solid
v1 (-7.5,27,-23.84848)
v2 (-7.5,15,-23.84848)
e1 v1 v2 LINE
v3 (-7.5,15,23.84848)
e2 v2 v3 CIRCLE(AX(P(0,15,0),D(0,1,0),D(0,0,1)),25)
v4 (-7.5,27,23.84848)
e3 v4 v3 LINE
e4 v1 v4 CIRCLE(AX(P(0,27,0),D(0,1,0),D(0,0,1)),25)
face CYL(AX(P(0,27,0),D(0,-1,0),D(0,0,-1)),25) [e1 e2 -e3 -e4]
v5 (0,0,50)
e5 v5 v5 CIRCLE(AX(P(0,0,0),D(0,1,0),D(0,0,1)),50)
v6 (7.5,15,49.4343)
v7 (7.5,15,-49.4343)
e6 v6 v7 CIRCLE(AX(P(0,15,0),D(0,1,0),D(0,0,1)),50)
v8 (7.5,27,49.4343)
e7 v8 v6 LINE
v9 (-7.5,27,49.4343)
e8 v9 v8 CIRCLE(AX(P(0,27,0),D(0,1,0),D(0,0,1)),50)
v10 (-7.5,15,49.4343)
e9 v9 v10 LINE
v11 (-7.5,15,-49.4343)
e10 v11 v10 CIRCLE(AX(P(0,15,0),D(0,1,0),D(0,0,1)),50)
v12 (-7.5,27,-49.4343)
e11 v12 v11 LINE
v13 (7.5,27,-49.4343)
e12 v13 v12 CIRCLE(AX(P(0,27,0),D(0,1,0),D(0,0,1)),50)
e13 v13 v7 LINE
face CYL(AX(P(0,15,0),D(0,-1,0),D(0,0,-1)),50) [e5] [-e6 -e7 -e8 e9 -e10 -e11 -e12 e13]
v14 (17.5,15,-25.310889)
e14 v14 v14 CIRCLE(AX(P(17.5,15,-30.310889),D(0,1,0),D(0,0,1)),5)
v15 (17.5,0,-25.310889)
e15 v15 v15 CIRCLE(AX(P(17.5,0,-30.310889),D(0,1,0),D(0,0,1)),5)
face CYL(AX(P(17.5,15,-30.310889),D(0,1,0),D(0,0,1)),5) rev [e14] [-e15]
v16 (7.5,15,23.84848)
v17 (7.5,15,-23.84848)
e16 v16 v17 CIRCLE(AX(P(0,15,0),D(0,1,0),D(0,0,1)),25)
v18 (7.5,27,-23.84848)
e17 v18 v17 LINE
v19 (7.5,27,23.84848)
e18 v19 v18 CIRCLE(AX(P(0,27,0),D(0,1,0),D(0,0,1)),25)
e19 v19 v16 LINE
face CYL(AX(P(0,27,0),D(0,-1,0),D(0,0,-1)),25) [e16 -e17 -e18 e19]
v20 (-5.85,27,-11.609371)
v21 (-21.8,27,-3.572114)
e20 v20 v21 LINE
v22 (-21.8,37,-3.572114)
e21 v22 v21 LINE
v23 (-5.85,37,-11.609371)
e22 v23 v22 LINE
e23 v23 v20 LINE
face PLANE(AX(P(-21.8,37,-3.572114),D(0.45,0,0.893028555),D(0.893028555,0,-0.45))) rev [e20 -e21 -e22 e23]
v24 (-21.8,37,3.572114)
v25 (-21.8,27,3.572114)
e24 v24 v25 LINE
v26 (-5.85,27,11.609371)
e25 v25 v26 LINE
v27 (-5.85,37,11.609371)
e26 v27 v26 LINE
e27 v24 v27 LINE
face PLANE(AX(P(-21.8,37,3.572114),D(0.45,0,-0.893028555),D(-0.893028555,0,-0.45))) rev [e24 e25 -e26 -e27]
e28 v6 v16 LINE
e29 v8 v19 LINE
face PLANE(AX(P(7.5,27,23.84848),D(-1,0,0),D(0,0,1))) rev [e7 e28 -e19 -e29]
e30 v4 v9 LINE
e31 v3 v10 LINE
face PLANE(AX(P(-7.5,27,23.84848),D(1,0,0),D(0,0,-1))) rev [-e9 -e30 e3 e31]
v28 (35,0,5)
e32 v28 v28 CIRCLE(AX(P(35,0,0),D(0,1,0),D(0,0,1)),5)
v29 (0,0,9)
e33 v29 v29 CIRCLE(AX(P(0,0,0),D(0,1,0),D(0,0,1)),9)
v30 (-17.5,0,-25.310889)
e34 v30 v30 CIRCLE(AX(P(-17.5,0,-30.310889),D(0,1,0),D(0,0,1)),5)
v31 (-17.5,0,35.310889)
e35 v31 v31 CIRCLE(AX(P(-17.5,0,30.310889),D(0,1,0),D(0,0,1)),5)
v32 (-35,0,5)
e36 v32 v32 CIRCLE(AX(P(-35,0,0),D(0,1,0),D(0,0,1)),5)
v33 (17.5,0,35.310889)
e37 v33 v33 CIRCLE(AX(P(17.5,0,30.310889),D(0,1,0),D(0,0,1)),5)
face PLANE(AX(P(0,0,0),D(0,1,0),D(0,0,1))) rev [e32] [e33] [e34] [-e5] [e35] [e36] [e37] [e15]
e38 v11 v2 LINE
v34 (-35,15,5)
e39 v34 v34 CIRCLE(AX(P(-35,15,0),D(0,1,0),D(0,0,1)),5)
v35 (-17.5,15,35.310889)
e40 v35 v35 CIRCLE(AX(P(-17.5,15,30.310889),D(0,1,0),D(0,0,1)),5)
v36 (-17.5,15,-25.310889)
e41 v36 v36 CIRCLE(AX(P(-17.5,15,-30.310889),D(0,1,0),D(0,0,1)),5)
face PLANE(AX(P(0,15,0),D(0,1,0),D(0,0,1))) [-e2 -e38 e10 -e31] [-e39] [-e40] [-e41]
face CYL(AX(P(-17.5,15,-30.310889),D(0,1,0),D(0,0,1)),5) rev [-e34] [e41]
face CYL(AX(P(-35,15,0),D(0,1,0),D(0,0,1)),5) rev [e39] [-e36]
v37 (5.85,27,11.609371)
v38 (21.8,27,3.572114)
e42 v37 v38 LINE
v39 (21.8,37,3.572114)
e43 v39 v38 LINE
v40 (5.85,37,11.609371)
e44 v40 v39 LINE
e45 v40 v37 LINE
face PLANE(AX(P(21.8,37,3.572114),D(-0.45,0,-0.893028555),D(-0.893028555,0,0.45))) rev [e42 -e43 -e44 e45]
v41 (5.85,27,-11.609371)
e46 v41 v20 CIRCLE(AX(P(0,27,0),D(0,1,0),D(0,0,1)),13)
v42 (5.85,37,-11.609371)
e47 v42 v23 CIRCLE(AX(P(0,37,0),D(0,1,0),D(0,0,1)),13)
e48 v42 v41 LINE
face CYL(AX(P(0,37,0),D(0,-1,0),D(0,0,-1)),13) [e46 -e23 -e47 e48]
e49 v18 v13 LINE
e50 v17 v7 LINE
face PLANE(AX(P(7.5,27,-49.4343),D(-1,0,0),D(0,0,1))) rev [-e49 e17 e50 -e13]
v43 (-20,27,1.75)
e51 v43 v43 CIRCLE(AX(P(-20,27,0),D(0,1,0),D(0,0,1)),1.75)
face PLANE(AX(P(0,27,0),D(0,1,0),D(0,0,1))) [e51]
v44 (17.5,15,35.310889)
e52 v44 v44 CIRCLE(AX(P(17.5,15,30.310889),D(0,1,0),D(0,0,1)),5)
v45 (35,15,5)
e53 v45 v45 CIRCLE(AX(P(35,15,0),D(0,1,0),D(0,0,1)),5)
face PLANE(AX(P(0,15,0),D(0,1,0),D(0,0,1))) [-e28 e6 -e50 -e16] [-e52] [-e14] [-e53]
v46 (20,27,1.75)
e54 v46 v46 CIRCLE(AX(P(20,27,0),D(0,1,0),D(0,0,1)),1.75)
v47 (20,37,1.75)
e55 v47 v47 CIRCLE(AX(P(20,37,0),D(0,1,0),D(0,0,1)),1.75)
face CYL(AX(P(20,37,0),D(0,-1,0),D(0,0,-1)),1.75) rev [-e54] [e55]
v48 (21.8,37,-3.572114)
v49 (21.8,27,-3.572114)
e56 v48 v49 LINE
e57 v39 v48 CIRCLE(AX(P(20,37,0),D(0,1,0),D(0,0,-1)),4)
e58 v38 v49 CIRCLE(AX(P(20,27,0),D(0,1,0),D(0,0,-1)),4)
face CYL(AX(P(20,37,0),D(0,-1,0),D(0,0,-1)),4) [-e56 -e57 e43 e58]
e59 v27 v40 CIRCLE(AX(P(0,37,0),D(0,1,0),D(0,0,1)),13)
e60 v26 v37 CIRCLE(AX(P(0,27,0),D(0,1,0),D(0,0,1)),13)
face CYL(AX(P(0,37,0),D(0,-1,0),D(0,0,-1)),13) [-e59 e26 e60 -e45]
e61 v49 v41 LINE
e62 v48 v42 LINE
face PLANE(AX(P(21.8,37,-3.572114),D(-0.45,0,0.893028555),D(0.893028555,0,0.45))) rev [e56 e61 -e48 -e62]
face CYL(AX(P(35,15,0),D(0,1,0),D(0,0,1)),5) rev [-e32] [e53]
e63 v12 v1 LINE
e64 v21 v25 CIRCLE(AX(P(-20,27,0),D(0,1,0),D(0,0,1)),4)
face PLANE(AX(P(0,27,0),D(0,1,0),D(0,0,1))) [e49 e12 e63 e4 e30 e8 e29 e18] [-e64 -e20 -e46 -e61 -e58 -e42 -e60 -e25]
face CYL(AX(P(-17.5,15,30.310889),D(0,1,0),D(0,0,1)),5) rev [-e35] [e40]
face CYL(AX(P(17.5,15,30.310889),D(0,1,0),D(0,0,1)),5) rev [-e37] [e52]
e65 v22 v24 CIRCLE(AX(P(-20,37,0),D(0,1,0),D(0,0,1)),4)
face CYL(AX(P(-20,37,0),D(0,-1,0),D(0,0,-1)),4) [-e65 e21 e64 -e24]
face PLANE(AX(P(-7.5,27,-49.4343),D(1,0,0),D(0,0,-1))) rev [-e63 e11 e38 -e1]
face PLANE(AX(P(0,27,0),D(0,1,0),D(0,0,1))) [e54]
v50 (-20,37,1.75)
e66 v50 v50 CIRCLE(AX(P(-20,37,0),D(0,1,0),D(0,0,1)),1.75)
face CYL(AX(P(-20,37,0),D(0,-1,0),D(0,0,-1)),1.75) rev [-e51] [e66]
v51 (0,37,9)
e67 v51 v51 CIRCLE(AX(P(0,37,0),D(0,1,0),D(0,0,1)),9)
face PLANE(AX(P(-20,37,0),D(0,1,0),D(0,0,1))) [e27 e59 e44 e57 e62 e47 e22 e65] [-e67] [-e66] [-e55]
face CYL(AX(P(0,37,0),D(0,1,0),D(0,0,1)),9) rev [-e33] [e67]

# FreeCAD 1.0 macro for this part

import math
import FreeCAD as App
import Part
import Sketcher

doc = App.newDocument("Part")
body = doc.addObject("PartDesign::Body", "Body")

# Sketch on XZ plane
sketch1 = body.newObject("Sketcher::SketchObject", "Sketch")
sketch1.AttachmentSupport = (doc.getObject("XZ_Plane"), [""])
sketch1.MapMode = "FlatFace"
sketch1.addGeometry(Part.Circle(App.Vector(0, 0, 0), App.Vector(0, 0, 1), 50), False)
sketch1.addConstraint(Sketcher.Constraint("Coincident", 0, 3, -1, 1))
sketch1.addConstraint(Sketcher.Constraint("Diameter", 0, 100.0))
pad1 = body.newObject("PartDesign::Pad", "Pad")
pad1.Profile = sketch1
pad1.Length = 15
pad1.Reversed = True

# Sketch on XZ plane
sketch2 = body.newObject("Sketcher::SketchObject", "Sketch001")
sketch2.AttachmentSupport = (doc.getObject("XZ_Plane"), [""])
sketch2.MapMode = "FlatFace"
sketch2.AttachmentOffset = App.Placement(App.Vector(0, 0, -15), App.Rotation())
sketch2.addGeometry(Part.LineSegment(App.Vector(7.5, -23.84848, 0), App.Vector(7.5, -49.4343, 0)), False)
sketch2.addGeometry(Part.ArcOfCircle(Part.Circle(App.Vector(0, 0, 0), App.Vector(0, 0, 1), 50), math.radians(-98.626927), math.radians(-81.373073)), False)
sketch2.addGeometry(Part.LineSegment(App.Vector(-7.5, -49.4343, 0), App.Vector(-7.5, -23.84848, 0)), False)
sketch2.addGeometry(Part.ArcOfCircle(Part.Circle(App.Vector(0, 0, 0), App.Vector(0, 0, 1), 25), math.radians(107.457603), math.radians(252.542397)), False)
sketch2.addGeometry(Part.LineSegment(App.Vector(-7.5, 23.84848, 0), App.Vector(-7.5, 49.4343, 0)), False)
sketch2.addGeometry(Part.ArcOfCircle(Part.Circle(App.Vector(0, 0, 0), App.Vector(0, 0, 1), 50), math.radians(81.373073), math.radians(98.626927)), False)
sketch2.addGeometry(Part.LineSegment(App.Vector(7.5, 49.4343, 0), App.Vector(7.5, 23.84848, 0)), False)
sketch2.addGeometry(Part.ArcOfCircle(Part.Circle(App.Vector(0, 0, 0), App.Vector(0, 0, 1), 25), math.radians(-72.542397), math.radians(72.542397)), False)
sketch2.addConstraint(Sketcher.Constraint("Coincident", 0, 2, 1, 2))
sketch2.addConstraint(Sketcher.Constraint("Coincident", 1, 1, 2, 1))
sketch2.addConstraint(Sketcher.Constraint("Coincident", 2, 2, 3, 2))
sketch2.addConstraint(Sketcher.Constraint("Coincident", 3, 1, 4, 1))
sketch2.addConstraint(Sketcher.Constraint("Coincident", 4, 2, 5, 2))
sketch2.addConstraint(Sketcher.Constraint("Coincident", 5, 1, 6, 1))
sketch2.addConstraint(Sketcher.Constraint("Coincident", 6, 2, 7, 2))
sketch2.addConstraint(Sketcher.Constraint("Coincident", 7, 1, 0, 1))
sketch2.addConstraint(Sketcher.Constraint("Vertical", 0))
sketch2.addConstraint(Sketcher.Constraint("Vertical", 2))
sketch2.addConstraint(Sketcher.Constraint("Vertical", 4))
sketch2.addConstraint(Sketcher.Constraint("Vertical", 6))
sketch2.addConstraint(Sketcher.Constraint("Coincident", 1, 3, -1, 1))
sketch2.addConstraint(Sketcher.Constraint("Coincident", 3, 3, -1, 1))
sketch2.addConstraint(Sketcher.Constraint("Coincident", 5, 3, -1, 1))
sketch2.addConstraint(Sketcher.Constraint("Coincident", 7, 3, -1, 1))
sketch2.addConstraint(Sketcher.Constraint("Equal", 1, 5))
sketch2.addConstraint(Sketcher.Constraint("Equal", 3, 7))
sketch2.addConstraint(Sketcher.Constraint("Horizontal", 0, 2, 1, 1))
sketch2.addConstraint(Sketcher.Constraint("Horizontal", 4, 2, 5, 1))
sketch2.addConstraint(Sketcher.Constraint("Vertical", 2, 2, 3, 1))
sketch2.addConstraint(Sketcher.Constraint("Radius", 1, 50.0))
sketch2.addConstraint(Sketcher.Constraint("Radius", 3, 25.0))
sketch2.addConstraint(Sketcher.Constraint("DistanceX", 1, 1, 0, 2, 15.0))
pad2 = body.newObject("PartDesign::Pad", "Pad001")
pad2.Profile = sketch2
pad2.Length = 12
pad2.Reversed = True

# Sketch on XZ plane
sketch3 = body.newObject("Sketcher::SketchObject", "Sketch002")
sketch3.AttachmentSupport = (doc.getObject("XZ_Plane"), [""])
sketch3.MapMode = "FlatFace"
sketch3.AttachmentOffset = App.Placement(App.Vector(0, 0, -27), App.Rotation())
sketch3.addGeometry(Part.LineSegment(App.Vector(-5.85, -11.609371, 0), App.Vector(-21.8, -3.572114, 0)), False)
sketch3.addGeometry(Part.ArcOfCircle(Part.Circle(App.Vector(-20, 0, 0), App.Vector(0, 0, 1), 4), math.radians(116.743684), math.radians(243.256316)), False)
sketch3.addGeometry(Part.LineSegment(App.Vector(-21.8, 3.572114, 0), App.Vector(-5.85, 11.609371, 0)), False)
sketch3.addGeometry(Part.ArcOfCircle(Part.Circle(App.Vector(0, 0, 0), App.Vector(0, 0, 1), 13), math.radians(63.256316), math.radians(116.743684)), False)
sketch3.addGeometry(Part.LineSegment(App.Vector(5.85, 11.609371, 0), App.Vector(21.8, 3.572114, 0)), False)
sketch3.addGeometry(Part.ArcOfCircle(Part.Circle(App.Vector(20, 0, 0), App.Vector(0, 0, 1), 4), math.radians(-63.256316), math.radians(63.256316)), False)
sketch3.addGeometry(Part.LineSegment(App.Vector(21.8, -3.572114, 0), App.Vector(5.85, -11.609371, 0)), False)
sketch3.addGeometry(Part.ArcOfCircle(Part.Circle(App.Vector(0, 0, 0), App.Vector(0, 0, 1), 13), math.radians(-116.743684), math.radians(-63.256316)), False)
sketch3.addGeometry(Part.Circle(App.Vector(20, 0, 0), App.Vector(0, 0, 1), 1.75), False)
sketch3.addGeometry(Part.Circle(App.Vector(-20, 0, 0), App.Vector(0, 0, 1), 1.75), False)
sketch3.addConstraint(Sketcher.Constraint("Tangent", 0, 2, 1, 2))
sketch3.addConstraint(Sketcher.Constraint("Tangent", 1, 1, 2, 1))
sketch3.addConstraint(Sketcher.Constraint("Tangent", 2, 2, 3, 2))
sketch3.addConstraint(Sketcher.Constraint("Tangent", 3, 1, 4, 1))
sketch3.addConstraint(Sketcher.Constraint("Tangent", 4, 2, 5, 2))
sketch3.addConstraint(Sketcher.Constraint("Tangent", 5, 1, 6, 1))
sketch3.addConstraint(Sketcher.Constraint("Tangent", 6, 2, 7, 2))
sketch3.addConstraint(Sketcher.Constraint("Tangent", 7, 1, 0, 1))
sketch3.addConstraint(Sketcher.Constraint("Coincident", 3, 3, -1, 1))
sketch3.addConstraint(Sketcher.Constraint("Coincident", 7, 3, -1, 1))
sketch3.addConstraint(Sketcher.Constraint("Coincident", 8, 3, 5, 3))
sketch3.addConstraint(Sketcher.Constraint("Coincident", 9, 3, 1, 3))
sketch3.addConstraint(Sketcher.Constraint("Equal", 1, 5))
sketch3.addConstraint(Sketcher.Constraint("Equal", 3, 7))
sketch3.addConstraint(Sketcher.Constraint("Equal", 8, 9))
sketch3.addConstraint(Sketcher.Constraint("Symmetric", 1, 3, 5, 3, -1, 1))
sketch3.addConstraint(Sketcher.Constraint("PointOnObject", 1, 3, -1))
sketch3.addConstraint(Sketcher.Constraint("Radius", 1, 4.0))
sketch3.addConstraint(Sketcher.Constraint("Radius", 3, 13.0))
sketch3.addConstraint(Sketcher.Constraint("Diameter", 8, 3.5))
sketch3.addConstraint(Sketcher.Constraint("DistanceX", 1, 3, -1, 1, 20.0))
pad3 = body.newObject("PartDesign::Pad", "Pad002")
pad3.Profile = sketch3
pad3.Length = 10
pad3.Reversed = True

# Sketch on XZ plane
sketch4 = body.newObject("Sketcher::SketchObject", "Sketch003")
sketch4.AttachmentSupport = (doc.getObject("XZ_Plane"), [""])
sketch4.MapMode = "FlatFace"
sketch4.AttachmentOffset = App.Placement(App.Vector(0, 0, -37), App.Rotation())
sketch4.addGeometry(Part.Circle(App.Vector(0, 0, 0), App.Vector(0, 0, 1), 9), False)
sketch4.addConstraint(Sketcher.Constraint("Coincident", 0, 3, -1, 1))
sketch4.addConstraint(Sketcher.Constraint("Diameter", 0, 18.0))
doc.recompute()
hole = body.newObject("PartDesign::Hole", "Hole")
hole.Profile = sketch4
hole.ThreadType = "None"
hole.Diameter = 18
hole.DepthType = "ThroughAll"
hole.Reversed = True

# Sketch on XZ plane
sketch5 = body.newObject("Sketcher::SketchObject", "Sketch004")
sketch5.AttachmentSupport = (doc.getObject("XZ_Plane"), [""])
sketch5.MapMode = "FlatFace"
sketch5.AttachmentOffset = App.Placement(App.Vector(0, 0, -15), App.Rotation())
sketch5.addGeometry(Part.Circle(App.Vector(35, 0, 0), App.Vector(0, 0, 1), 5), False)
sketch5.addConstraint(Sketcher.Constraint("PointOnObject", 0, 3, -1))
sketch5.addConstraint(Sketcher.Constraint("Diameter", 0, 10.0))
sketch5.addConstraint(Sketcher.Constraint("DistanceX", -1, 1, 0, 3, 35.0))
doc.recompute()
hole2 = body.newObject("PartDesign::Hole", "Hole001")
hole2.Profile = sketch5
hole2.ThreadType = "None"
hole2.Diameter = 10
hole2.DepthType = "ThroughAll"
hole2.Reversed = True
doc.recompute()

polarpattern = body.newObject("PartDesign::PolarPattern", "PolarPattern")
polarpattern.Originals = [hole2]
polarpattern.Axis = (doc.getObject("Y_Axis"), [""])
polarpattern.Angle = 360
polarpattern.Occurrences = 6
body.Tip = polarpattern

doc.recompute()
